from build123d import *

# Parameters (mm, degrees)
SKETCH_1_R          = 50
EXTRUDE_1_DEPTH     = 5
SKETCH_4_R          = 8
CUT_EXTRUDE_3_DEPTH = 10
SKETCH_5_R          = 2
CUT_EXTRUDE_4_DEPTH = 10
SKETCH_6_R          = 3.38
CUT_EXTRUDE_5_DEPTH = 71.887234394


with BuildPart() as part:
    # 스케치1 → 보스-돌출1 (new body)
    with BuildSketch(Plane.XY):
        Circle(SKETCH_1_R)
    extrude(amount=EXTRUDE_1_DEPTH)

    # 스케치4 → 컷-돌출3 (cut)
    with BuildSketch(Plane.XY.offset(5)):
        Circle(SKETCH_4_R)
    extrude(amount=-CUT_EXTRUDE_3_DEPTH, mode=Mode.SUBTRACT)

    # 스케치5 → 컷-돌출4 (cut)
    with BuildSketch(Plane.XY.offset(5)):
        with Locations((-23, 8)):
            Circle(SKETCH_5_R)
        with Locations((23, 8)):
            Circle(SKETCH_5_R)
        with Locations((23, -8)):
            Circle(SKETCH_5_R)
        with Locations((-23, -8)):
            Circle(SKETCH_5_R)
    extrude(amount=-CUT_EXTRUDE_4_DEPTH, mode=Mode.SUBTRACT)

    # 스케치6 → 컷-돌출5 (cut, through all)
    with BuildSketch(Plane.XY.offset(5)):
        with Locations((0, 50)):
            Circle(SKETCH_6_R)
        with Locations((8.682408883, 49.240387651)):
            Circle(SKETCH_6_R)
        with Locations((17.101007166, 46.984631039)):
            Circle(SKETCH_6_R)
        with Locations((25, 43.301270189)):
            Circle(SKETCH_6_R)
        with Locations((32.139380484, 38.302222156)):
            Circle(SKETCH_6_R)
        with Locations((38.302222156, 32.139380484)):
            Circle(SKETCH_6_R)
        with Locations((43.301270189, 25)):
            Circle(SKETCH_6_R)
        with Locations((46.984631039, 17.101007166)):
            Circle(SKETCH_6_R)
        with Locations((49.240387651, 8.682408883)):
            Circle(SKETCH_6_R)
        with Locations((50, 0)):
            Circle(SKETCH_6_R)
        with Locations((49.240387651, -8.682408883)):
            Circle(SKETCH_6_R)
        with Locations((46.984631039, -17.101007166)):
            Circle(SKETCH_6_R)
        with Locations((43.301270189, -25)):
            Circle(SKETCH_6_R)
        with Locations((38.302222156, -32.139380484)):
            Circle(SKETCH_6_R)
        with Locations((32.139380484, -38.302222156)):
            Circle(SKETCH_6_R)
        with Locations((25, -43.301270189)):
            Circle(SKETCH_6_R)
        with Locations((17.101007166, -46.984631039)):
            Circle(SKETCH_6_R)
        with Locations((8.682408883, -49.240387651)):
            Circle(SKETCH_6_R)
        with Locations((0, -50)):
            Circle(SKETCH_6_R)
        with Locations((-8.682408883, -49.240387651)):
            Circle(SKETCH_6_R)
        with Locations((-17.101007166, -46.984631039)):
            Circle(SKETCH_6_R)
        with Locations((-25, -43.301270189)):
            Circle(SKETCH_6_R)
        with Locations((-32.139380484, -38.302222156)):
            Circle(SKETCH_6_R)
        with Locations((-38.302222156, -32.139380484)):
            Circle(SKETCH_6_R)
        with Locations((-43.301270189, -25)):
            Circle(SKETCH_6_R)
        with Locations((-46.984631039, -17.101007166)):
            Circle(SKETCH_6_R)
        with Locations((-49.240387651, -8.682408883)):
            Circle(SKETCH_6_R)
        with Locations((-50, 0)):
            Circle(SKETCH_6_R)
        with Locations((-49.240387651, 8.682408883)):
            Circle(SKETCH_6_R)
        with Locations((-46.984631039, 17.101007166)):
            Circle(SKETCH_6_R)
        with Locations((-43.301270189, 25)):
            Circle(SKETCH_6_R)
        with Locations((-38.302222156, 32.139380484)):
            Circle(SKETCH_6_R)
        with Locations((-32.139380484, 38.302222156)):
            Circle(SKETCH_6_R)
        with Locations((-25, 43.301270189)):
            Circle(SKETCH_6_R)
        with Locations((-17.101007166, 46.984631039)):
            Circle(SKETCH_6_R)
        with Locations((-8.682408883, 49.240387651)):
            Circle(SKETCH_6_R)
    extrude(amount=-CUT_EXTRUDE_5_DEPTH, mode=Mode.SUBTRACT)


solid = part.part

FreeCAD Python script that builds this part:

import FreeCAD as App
import Part
import Sketcher

V = App.Vector

doc = App.newDocument("Part")
body = doc.addObject("PartDesign::Body", "Body")

# Sketch on XY plane
sketch1 = doc.addObject("Sketcher::SketchObject", "Sketch")
body.addObject(sketch1)
sketch1.AttachmentSupport = (doc.XY_Plane, [""])
sketch1.MapMode = "FlatFace"
sketch1.addGeometry(Part.Circle(V(0, 0, 0), V(0, 0, 1), 50), False)
sketch1.addConstraint([
    Sketcher.Constraint("Coincident", 0, 3, -1, 1),
    Sketcher.Constraint("Diameter", 0, 100.0),
])
pad1 = doc.addObject("PartDesign::Pad", "Pad")
body.addObject(pad1)
pad1.Profile = sketch1
pad1.Length = 5

# Sketch on XY plane
sketch2 = doc.addObject("Sketcher::SketchObject", "Sketch001")
body.addObject(sketch2)
sketch2.AttachmentSupport = (doc.XY_Plane, [""])
sketch2.MapMode = "FlatFace"
sketch2.AttachmentOffset = App.Placement(V(0, 0, 5), App.Rotation())
sketch2.addGeometry(Part.Circle(V(0, 0, 0), V(0, 0, 1), 8), False)
sketch2.addConstraint([
    Sketcher.Constraint("Coincident", 0, 3, -1, 1),
    Sketcher.Constraint("Diameter", 0, 16.0),
])
pocket1 = doc.addObject("PartDesign::Pocket", "Pocket")
body.addObject(pocket1)
pocket1.Profile = sketch2
pocket1.Length = 10

# Sketch on XY plane
sketch3 = doc.addObject("Sketcher::SketchObject", "Sketch002")
body.addObject(sketch3)
sketch3.AttachmentSupport = (doc.XY_Plane, [""])
sketch3.MapMode = "FlatFace"
sketch3.AttachmentOffset = App.Placement(V(0, 0, 5), App.Rotation())
sketch3.addGeometry([
    Part.Circle(V(-23, 8, 0), V(0, 0, 1), 2),
    Part.Circle(V(23, 8, 0), V(0, 0, 1), 2),
    Part.Circle(V(23, -8, 0), V(0, 0, 1), 2),
    Part.Circle(V(-23, -8, 0), V(0, 0, 1), 2),
], False)
sketch3.addConstraint([
    Sketcher.Constraint("Equal", 0, 1),
    Sketcher.Constraint("Equal", 1, 2),
    Sketcher.Constraint("Equal", 2, 3),
    Sketcher.Constraint("Symmetric", 0, 3, 2, 3, -1, 1),
    Sketcher.Constraint("Symmetric", 1, 3, 3, 3, -1, 1),
    Sketcher.Constraint("Symmetric", 0, 3, 1, 3, -2),
    Sketcher.Constraint("Diameter", 0, 4.0),
    Sketcher.Constraint("DistanceX", 0, 3, -1, 1, 23.0),
    Sketcher.Constraint("DistanceY", -1, 1, 0, 3, 8.0),
])
pocket2 = doc.addObject("PartDesign::Pocket", "Pocket001")
body.addObject(pocket2)
pocket2.Profile = sketch3
pocket2.Length = 10

# Sketch on XY plane
sketch4 = doc.addObject("Sketcher::SketchObject", "Sketch003")
body.addObject(sketch4)
sketch4.AttachmentSupport = (doc.XY_Plane, [""])
sketch4.MapMode = "FlatFace"
sketch4.AttachmentOffset = App.Placement(V(0, 0, 5), App.Rotation())
sketch4.addGeometry([
    Part.Circle(V(0, 50, 0), V(0, 0, 1), 3.4),  # 0
    Part.Circle(V(8.7, 49.2, 0), V(0, 0, 1), 3.4),  # 1
    Part.Circle(V(17.1, 47, 0), V(0, 0, 1), 3.4),  # 2
    Part.Circle(V(25, 43.3, 0), V(0, 0, 1), 3.4),  # 3
    Part.Circle(V(32.1, 38.3, 0), V(0, 0, 1), 3.4),  # 4
    Part.Circle(V(38.3, 32.1, 0), V(0, 0, 1), 3.4),  # 5
    Part.Circle(V(43.3, 25, 0), V(0, 0, 1), 3.4),  # 6
    Part.Circle(V(47, 17.1, 0), V(0, 0, 1), 3.4),  # 7
    Part.Circle(V(49.2, 8.7, 0), V(0, 0, 1), 3.4),  # 8
    Part.Circle(V(50, 0, 0), V(0, 0, 1), 3.4),  # 9
    Part.Circle(V(49.2, -8.7, 0), V(0, 0, 1), 3.4),  # 10
    Part.Circle(V(47, -17.1, 0), V(0, 0, 1), 3.4),  # 11
    Part.Circle(V(43.3, -25, 0), V(0, 0, 1), 3.4),  # 12
    Part.Circle(V(38.3, -32.1, 0), V(0, 0, 1), 3.4),  # 13
    Part.Circle(V(32.1, -38.3, 0), V(0, 0, 1), 3.4),  # 14
    Part.Circle(V(25, -43.3, 0), V(0, 0, 1), 3.4),  # 15
    Part.Circle(V(17.1, -47, 0), V(0, 0, 1), 3.4),  # 16
    Part.Circle(V(8.7, -49.2, 0), V(0, 0, 1), 3.4),  # 17
    Part.Circle(V(0, -50, 0), V(0, 0, 1), 3.4),  # 18
    Part.Circle(V(-8.7, -49.2, 0), V(0, 0, 1), 3.4),  # 19
    Part.Circle(V(-17.1, -47, 0), V(0, 0, 1), 3.4),  # 20
    Part.Circle(V(-25, -43.3, 0), V(0, 0, 1), 3.4),  # 21
    Part.Circle(V(-32.1, -38.3, 0), V(0, 0, 1), 3.4),  # 22
    Part.Circle(V(-38.3, -32.1, 0), V(0, 0, 1), 3.4),  # 23
    Part.Circle(V(-43.3, -25, 0), V(0, 0, 1), 3.4),  # 24
    Part.Circle(V(-47, -17.1, 0), V(0, 0, 1), 3.4),  # 25
    Part.Circle(V(-49.2, -8.7, 0), V(0, 0, 1), 3.4),  # 26
    Part.Circle(V(-50, 0, 0), V(0, 0, 1), 3.4),  # 27
    Part.Circle(V(-49.2, 8.7, 0), V(0, 0, 1), 3.4),  # 28
    Part.Circle(V(-47, 17.1, 0), V(0, 0, 1), 3.4),  # 29
    Part.Circle(V(-43.3, 25, 0), V(0, 0, 1), 3.4),  # 30
    Part.Circle(V(-38.3, 32.1, 0), V(0, 0, 1), 3.4),  # 31
    Part.Circle(V(-32.1, 38.3, 0), V(0, 0, 1), 3.4),  # 32
    Part.Circle(V(-25, 43.3, 0), V(0, 0, 1), 3.4),  # 33
    Part.Circle(V(-17.1, 47, 0), V(0, 0, 1), 3.4),  # 34
    Part.Circle(V(-8.7, 49.2, 0), V(0, 0, 1), 3.4),  # 35
], False)
sketch4.addConstraint([
    Sketcher.Constraint("Equal", 0, 1),
    Sketcher.Constraint("Equal", 1, 2),
    Sketcher.Constraint("Equal", 2, 3),
    Sketcher.Constraint("Equal", 3, 4),
    Sketcher.Constraint("Equal", 4, 5),
    Sketcher.Constraint("Equal", 5, 6),
    Sketcher.Constraint("Equal", 6, 7),
    Sketcher.Constraint("Equal", 7, 8),
    Sketcher.Constraint("Equal", 8, 9),
    Sketcher.Constraint("Equal", 9, 10),
    Sketcher.Constraint("Equal", 10, 11),
    Sketcher.Constraint("Equal", 11, 12),
    Sketcher.Constraint("Equal", 12, 13),
    Sketcher.Constraint("Equal", 13, 14),
    Sketcher.Constraint("Equal", 14, 15),
    Sketcher.Constraint("Equal", 15, 16),
    Sketcher.Constraint("Equal", 16, 17),
    Sketcher.Constraint("Equal", 17, 18),
    Sketcher.Constraint("Equal", 18, 19),
    Sketcher.Constraint("Equal", 19, 20),
    Sketcher.Constraint("Equal", 20, 21),
    Sketcher.Constraint("Equal", 21, 22),
    Sketcher.Constraint("Equal", 22, 23),
    Sketcher.Constraint("Equal", 23, 24),
    Sketcher.Constraint("Equal", 24, 25),
    Sketcher.Constraint("Equal", 25, 26),
    Sketcher.Constraint("Equal", 26, 27),
    Sketcher.Constraint("Equal", 27, 28),
    Sketcher.Constraint("Equal", 28, 29),
    Sketcher.Constraint("Equal", 29, 30),
    Sketcher.Constraint("Equal", 30, 31),
    Sketcher.Constraint("Equal", 31, 32),
    Sketcher.Constraint("Equal", 32, 33),
    Sketcher.Constraint("Equal", 33, 34),
    Sketcher.Constraint("Equal", 34, 35),
    Sketcher.Constraint("Symmetric", 0, 3, 18, 3, -1, 1),
    Sketcher.Constraint("Symmetric", 1, 3, 19, 3, -1, 1),
    Sketcher.Constraint("Symmetric", 2, 3, 20, 3, -1, 1),
    Sketcher.Constraint("Symmetric", 3, 3, 21, 3, -1, 1),
    Sketcher.Constraint("Symmetric", 4, 3, 22, 3, -1, 1),
    Sketcher.Constraint("Symmetric", 5, 3, 23, 3, -1, 1),
    Sketcher.Constraint("Symmetric", 6, 3, 24, 3, -1, 1),
    Sketcher.Constraint("Symmetric", 7, 3, 25, 3, -1, 1),
    Sketcher.Constraint("Symmetric", 8, 3, 26, 3, -1, 1),
    Sketcher.Constraint("Symmetric", 9, 3, 27, 3, -1, 1),
    Sketcher.Constraint("Symmetric", 10, 3, 28, 3, -1, 1),
    Sketcher.Constraint("Symmetric", 11, 3, 29, 3, -1, 1),
    Sketcher.Constraint("Symmetric", 12, 3, 30, 3, -1, 1),
    Sketcher.Constraint("Symmetric", 13, 3, 31, 3, -1, 1),
    Sketcher.Constraint("Symmetric", 14, 3, 32, 3, -1, 1),
    Sketcher.Constraint("Symmetric", 15, 3, 33, 3, -1, 1),
    Sketcher.Constraint("Symmetric", 16, 3, 34, 3, -1, 1),
    Sketcher.Constraint("Symmetric", 17, 3, 35, 3, -1, 1),
    Sketcher.Constraint("Symmetric", 17, 3, 19, 3, -2),
    Sketcher.Constraint("Symmetric", 16, 3, 20, 3, -2),
    Sketcher.Constraint("Symmetric", 15, 3, 21, 3, -2),
    Sketcher.Constraint("Symmetric", 14, 3, 22, 3, -2),
    Sketcher.Constraint("Symmetric", 13, 3, 23, 3, -2),
    Sketcher.Constraint("Symmetric", 12, 3, 24, 3, -2),
    Sketcher.Constraint("Symmetric", 11, 3, 25, 3, -2),
    Sketcher.Constraint("Symmetric", 10, 3, 26, 3, -2),
    Sketcher.Constraint("PointOnObject", 0, 3, -2),
    Sketcher.Constraint("PointOnObject", 9, 3, -1),
    Sketcher.Constraint("Diameter", 0, 6.76),
    Sketcher.Constraint("DistanceY", -1, 1, 0, 3, 50.0),
    Sketcher.Constraint("DistanceX", -1, 1, 3, 3, 25.0),
    Sketcher.Constraint("DistanceY", -1, 1, 6, 3, 25.0),
    Sketcher.Constraint("DistanceX", -1, 1, 9, 3, 50.0),
    Sketcher.Constraint("DistanceX", 1, 3, 2, 3, 8.418598),
    Sketcher.Constraint("DistanceY", 8, 3, 7, 3, 8.418598),
    Sketcher.Constraint("DistanceX", -1, 1, 1, 3, 8.682409),
    Sketcher.Constraint("DistanceY", -1, 1, 2, 3, 46.984631),
    Sketcher.Constraint("DistanceY", -1, 1, 3, 3, 43.30127),
    Sketcher.Constraint("DistanceX", -1, 1, 4, 3, 32.13938),
    Sketcher.Constraint("DistanceY", -1, 1, 5, 3, 32.13938),
    Sketcher.Constraint("DistanceX", -1, 1, 6, 3, 43.30127),
    Sketcher.Constraint("DistanceX", -1, 1, 7, 3, 46.984631),
    Sketcher.Constraint("DistanceY", -1, 1, 8, 3, 8.682409),
    Sketcher.Constraint("DistanceY", 4, 3, 3, 3, 4.999048),
    Sketcher.Constraint("DistanceX", 4, 3, 5, 3, 6.162842),
    Sketcher.Constraint("DistanceY", -1, 1, 1, 3, 49.240388),
    Sketcher.Constraint("DistanceX", -1, 1, 8, 3, 49.240388),
])
pocket3 = doc.addObject("PartDesign::Pocket", "Pocket002")
body.addObject(pocket3)
pocket3.Profile = sketch4
pocket3.Type = "ThroughAll"

doc.recompute()
